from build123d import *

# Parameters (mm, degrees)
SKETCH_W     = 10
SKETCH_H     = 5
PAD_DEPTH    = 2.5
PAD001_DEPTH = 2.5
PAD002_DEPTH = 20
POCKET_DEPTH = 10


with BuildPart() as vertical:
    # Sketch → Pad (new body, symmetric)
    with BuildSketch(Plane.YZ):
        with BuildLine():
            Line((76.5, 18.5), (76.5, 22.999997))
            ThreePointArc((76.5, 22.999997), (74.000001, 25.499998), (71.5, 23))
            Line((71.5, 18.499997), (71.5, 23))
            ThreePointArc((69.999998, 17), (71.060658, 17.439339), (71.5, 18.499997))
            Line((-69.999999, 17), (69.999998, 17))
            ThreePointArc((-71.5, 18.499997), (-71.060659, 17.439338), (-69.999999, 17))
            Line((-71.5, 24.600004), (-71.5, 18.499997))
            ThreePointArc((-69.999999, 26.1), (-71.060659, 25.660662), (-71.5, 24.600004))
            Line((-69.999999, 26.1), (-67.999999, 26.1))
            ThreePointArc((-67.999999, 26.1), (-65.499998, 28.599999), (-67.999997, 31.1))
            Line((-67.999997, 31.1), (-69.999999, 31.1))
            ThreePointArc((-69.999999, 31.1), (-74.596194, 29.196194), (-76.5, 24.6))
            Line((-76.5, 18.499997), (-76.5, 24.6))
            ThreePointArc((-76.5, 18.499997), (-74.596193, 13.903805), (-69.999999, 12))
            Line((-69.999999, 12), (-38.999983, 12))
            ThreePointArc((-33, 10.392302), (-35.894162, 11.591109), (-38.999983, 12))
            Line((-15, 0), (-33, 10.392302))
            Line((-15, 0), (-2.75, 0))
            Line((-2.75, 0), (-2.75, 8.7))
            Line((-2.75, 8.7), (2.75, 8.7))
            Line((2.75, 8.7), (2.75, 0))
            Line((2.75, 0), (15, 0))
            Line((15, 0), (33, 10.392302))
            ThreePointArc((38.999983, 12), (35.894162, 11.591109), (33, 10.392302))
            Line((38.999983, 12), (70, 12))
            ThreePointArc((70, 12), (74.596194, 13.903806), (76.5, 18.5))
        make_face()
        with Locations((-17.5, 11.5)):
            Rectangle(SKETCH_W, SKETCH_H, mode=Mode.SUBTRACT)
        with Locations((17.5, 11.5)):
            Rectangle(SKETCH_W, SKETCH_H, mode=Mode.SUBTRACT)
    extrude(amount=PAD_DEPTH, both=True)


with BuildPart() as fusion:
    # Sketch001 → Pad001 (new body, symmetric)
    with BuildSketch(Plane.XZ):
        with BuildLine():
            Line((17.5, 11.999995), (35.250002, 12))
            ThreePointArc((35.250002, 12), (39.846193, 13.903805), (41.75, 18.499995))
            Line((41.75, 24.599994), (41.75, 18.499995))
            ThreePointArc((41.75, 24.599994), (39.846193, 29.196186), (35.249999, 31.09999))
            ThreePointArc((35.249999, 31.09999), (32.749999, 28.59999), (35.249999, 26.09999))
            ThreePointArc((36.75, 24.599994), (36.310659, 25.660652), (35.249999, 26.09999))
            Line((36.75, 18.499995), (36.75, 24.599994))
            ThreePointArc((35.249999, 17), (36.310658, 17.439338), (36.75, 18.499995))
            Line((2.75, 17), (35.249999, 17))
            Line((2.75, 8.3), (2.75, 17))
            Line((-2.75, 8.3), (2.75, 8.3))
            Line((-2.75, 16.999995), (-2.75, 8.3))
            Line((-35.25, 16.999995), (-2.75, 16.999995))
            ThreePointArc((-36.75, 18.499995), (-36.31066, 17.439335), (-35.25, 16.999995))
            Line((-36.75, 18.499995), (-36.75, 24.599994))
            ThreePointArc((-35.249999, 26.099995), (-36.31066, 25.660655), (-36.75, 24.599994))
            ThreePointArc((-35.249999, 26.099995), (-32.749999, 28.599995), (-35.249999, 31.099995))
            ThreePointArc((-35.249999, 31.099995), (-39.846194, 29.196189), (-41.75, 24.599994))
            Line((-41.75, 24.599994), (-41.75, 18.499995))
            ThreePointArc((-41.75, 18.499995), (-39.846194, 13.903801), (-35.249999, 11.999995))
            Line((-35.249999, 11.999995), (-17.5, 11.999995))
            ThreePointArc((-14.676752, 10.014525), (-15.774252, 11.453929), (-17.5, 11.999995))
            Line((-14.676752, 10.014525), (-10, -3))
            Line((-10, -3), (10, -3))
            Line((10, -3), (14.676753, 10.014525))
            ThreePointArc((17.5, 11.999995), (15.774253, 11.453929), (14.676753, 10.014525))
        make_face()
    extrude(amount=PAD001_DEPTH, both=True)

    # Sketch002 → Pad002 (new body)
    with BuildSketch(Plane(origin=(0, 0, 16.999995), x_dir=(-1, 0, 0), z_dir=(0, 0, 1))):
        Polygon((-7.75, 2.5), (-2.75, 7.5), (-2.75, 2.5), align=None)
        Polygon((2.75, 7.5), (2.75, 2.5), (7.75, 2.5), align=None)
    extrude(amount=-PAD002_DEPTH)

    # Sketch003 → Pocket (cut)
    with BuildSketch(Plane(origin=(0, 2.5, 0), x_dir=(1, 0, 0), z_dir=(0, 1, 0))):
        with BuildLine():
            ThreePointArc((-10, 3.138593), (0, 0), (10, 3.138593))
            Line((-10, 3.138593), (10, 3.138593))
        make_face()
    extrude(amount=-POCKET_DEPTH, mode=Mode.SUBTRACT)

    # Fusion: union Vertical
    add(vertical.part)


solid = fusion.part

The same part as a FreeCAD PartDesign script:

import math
import FreeCAD as App
import Part
import Sketcher

V = App.Vector
Q = App.Units.Quantity


def add_polygon(sketch, points):
    """Adds a closed chain of lines whose ends are joined by coincident constraints."""
    first, n = sketch.GeometryCount, len(points)
    for a, b in zip(points, points[1:] + points[:1]):
        sketch.addGeometry(Part.LineSegment(App.Vector(*a, 0), App.Vector(*b, 0)), False)
    for i in range(n):
        sketch.addConstraint(Sketcher.Constraint("Coincident", first + i, 2, first + (i + 1) % n, 1))

doc = App.newDocument("Part")
body = doc.addObject("PartDesign::Body", "Body")

# Sketch on YZ plane
sketch1 = body.newObject("Sketcher::SketchObject", "Sketch")
sketch1.AttachmentSupport = (doc.getObject("YZ_Plane"), [""])
sketch1.MapMode = "FlatFace"
sketch1.addGeometry(Part.LineSegment(V(76.5, 18.5, 0), V(76.5, 23, 0)), False)  # 0
sketch1.addGeometry(Part.ArcOfCircle(Part.Circle(V(74, 23, 0), V(0, 0, 1), 2.5), math.radians(0), math.radians(180)), False)  # 1
sketch1.addGeometry(Part.LineSegment(V(71.5, 23, 0), V(71.5, 18.5, 0)), False)  # 2
sketch1.addGeometry(Part.ArcOfCircle(Part.Circle(V(70, 18.5, 0), V(0, 0, 1), 1.5), math.radians(-90), math.radians(0)), False)  # 3
sketch1.addGeometry(Part.LineSegment(V(70, 17, 0), V(-70, 17, 0)), False)  # 4
sketch1.addGeometry(Part.ArcOfCircle(Part.Circle(V(-70, 18.5, 0), V(0, 0, 1), 1.5), math.radians(-180), math.radians(-90)), False)  # 5
sketch1.addGeometry(Part.LineSegment(V(-71.5, 18.5, 0), V(-71.5, 24.6, 0)), False)  # 6
sketch1.addGeometry(Part.ArcOfCircle(Part.Circle(V(-70, 24.6, 0), V(0, 0, 1), 1.5), math.radians(90), math.radians(180)), False)  # 7
sketch1.addGeometry(Part.LineSegment(V(-70, 26.1, 0), V(-68, 26.1, 0)), False)  # 8
sketch1.addGeometry(Part.ArcOfCircle(Part.Circle(V(-68, 28.6, 0), V(0, 0, 1), 2.5), math.radians(-90), math.radians(90)), False)  # 9
sketch1.addGeometry(Part.LineSegment(V(-68, 31.1, 0), V(-70, 31.1, 0)), False)  # 10
sketch1.addGeometry(Part.ArcOfCircle(Part.Circle(V(-70, 24.6, 0), V(0, 0, 1), 6.5), math.radians(90), math.radians(180)), False)  # 11
sketch1.addGeometry(Part.LineSegment(V(-76.5, 24.6, 0), V(-76.5, 18.5, 0)), False)  # 12
sketch1.addGeometry(Part.ArcOfCircle(Part.Circle(V(-70, 18.5, 0), V(0, 0, 1), 6.5), math.radians(-180), math.radians(-90)), False)  # 13
sketch1.addGeometry(Part.LineSegment(V(-70, 12, 0), V(-39, 12, 0)), False)  # 14
sketch1.addGeometry(Part.ArcOfCircle(Part.Circle(V(-39, 0, 0), V(0, 0, 1), 12), math.radians(60), math.radians(90)), False)  # 15
sketch1.addGeometry(Part.LineSegment(V(-33, 10.4, 0), V(-15, 0, 0)), False)  # 16
sketch1.addGeometry(Part.LineSegment(V(-15, 0, 0), V(-2.8, 0, 0)), False)  # 17
sketch1.addGeometry(Part.LineSegment(V(-2.8, 0, 0), V(-2.8, 8.7, 0)), False)  # 18
sketch1.addGeometry(Part.LineSegment(V(-2.8, 8.7, 0), V(2.8, 8.7, 0)), False)  # 19
sketch1.addGeometry(Part.LineSegment(V(2.8, 8.7, 0), V(2.8, 0, 0)), False)  # 20
sketch1.addGeometry(Part.LineSegment(V(2.8, 0, 0), V(15, 0, 0)), False)  # 21
sketch1.addGeometry(Part.LineSegment(V(15, 0, 0), V(33, 10.4, 0)), False)  # 22
sketch1.addGeometry(Part.ArcOfCircle(Part.Circle(V(39, 0, 0), V(0, 0, 1), 12), math.radians(90), math.radians(120)), False)  # 23
sketch1.addGeometry(Part.LineSegment(V(39, 12, 0), V(70, 12, 0)), False)  # 24
sketch1.addGeometry(Part.ArcOfCircle(Part.Circle(V(70, 18.5, 0), V(0, 0, 1), 6.5), math.radians(-90), math.radians(0)), False)  # 25
add_polygon(sketch1, [(-12.5, 9), (-22.5, 9), (-22.5, 14), (-12.5, 14)])  # lines 26-29
add_polygon(sketch1, [(22.5, 9), (12.5, 9), (12.5, 14), (22.5, 14)])  # lines 30-33
sketch1.addConstraint(Sketcher.Constraint("Tangent", 0, 2, 1, 1))
sketch1.addConstraint(Sketcher.Constraint("Tangent", 1, 2, 2, 1))
sketch1.addConstraint(Sketcher.Constraint("Coincident", 2, 2, 3, 2))
sketch1.addConstraint(Sketcher.Constraint("Tangent", 3, 1, 4, 1))
sketch1.addConstraint(Sketcher.Constraint("Tangent", 4, 2, 5, 2))
sketch1.addConstraint(Sketcher.Constraint("Tangent", 5, 1, 6, 1))
sketch1.addConstraint(Sketcher.Constraint("Tangent", 6, 2, 7, 2))
sketch1.addConstraint(Sketcher.Constraint("Tangent", 7, 1, 8, 1))
sketch1.addConstraint(Sketcher.Constraint("Tangent", 8, 2, 9, 1))
sketch1.addConstraint(Sketcher.Constraint("Tangent", 9, 2, 10, 1))
sketch1.addConstraint(Sketcher.Constraint("Tangent", 10, 2, 11, 1))
sketch1.addConstraint(Sketcher.Constraint("Tangent", 11, 2, 12, 1))
sketch1.addConstraint(Sketcher.Constraint("Tangent", 12, 2, 13, 1))
sketch1.addConstraint(Sketcher.Constraint("Tangent", 13, 2, 14, 1))
sketch1.addConstraint(Sketcher.Constraint("Tangent", 14, 2, 15, 2))
sketch1.addConstraint(Sketcher.Constraint("Coincident", 15, 1, 16, 1))
sketch1.addConstraint(Sketcher.Constraint("Coincident", 16, 2, 17, 1))
sketch1.addConstraint(Sketcher.Constraint("Coincident", 17, 2, 18, 1))
sketch1.addConstraint(Sketcher.Constraint("Coincident", 18, 2, 19, 1))
sketch1.addConstraint(Sketcher.Constraint("Coincident", 19, 2, 20, 1))
sketch1.addConstraint(Sketcher.Constraint("Coincident", 20, 2, 21, 1))
sketch1.addConstraint(Sketcher.Constraint("Coincident", 21, 2, 22, 1))
sketch1.addConstraint(Sketcher.Constraint("Coincident", 22, 2, 23, 2))
sketch1.addConstraint(Sketcher.Constraint("Tangent", 23, 1, 24, 1))
sketch1.addConstraint(Sketcher.Constraint("Tangent", 24, 2, 25, 1))
sketch1.addConstraint(Sketcher.Constraint("Tangent", 25, 2, 0, 1))
sketch1.addConstraint(Sketcher.Constraint("Vertical", 0))
sketch1.addConstraint(Sketcher.Constraint("Vertical", 2))
sketch1.addConstraint(Sketcher.Constraint("Horizontal", 4))
sketch1.addConstraint(Sketcher.Constraint("Vertical", 6))
sketch1.addConstraint(Sketcher.Constraint("Horizontal", 8))
sketch1.addConstraint(Sketcher.Constraint("Horizontal", 10))
sketch1.addConstraint(Sketcher.Constraint("Vertical", 12))
sketch1.addConstraint(Sketcher.Constraint("Horizontal", 14))
sketch1.addConstraint(Sketcher.Constraint("Horizontal", 17))
sketch1.addConstraint(Sketcher.Constraint("Vertical", 18))
sketch1.addConstraint(Sketcher.Constraint("Horizontal", 19))
sketch1.addConstraint(Sketcher.Constraint("Vertical", 20))
sketch1.addConstraint(Sketcher.Constraint("Horizontal", 21))
sketch1.addConstraint(Sketcher.Constraint("Horizontal", 24))
sketch1.addConstraint(Sketcher.Constraint("Horizontal", 26))
sketch1.addConstraint(Sketcher.Constraint("Vertical", 27))
sketch1.addConstraint(Sketcher.Constraint("Horizontal", 28))
sketch1.addConstraint(Sketcher.Constraint("Vertical", 29))
sketch1.addConstraint(Sketcher.Constraint("Horizontal", 30))
sketch1.addConstraint(Sketcher.Constraint("Vertical", 31))
sketch1.addConstraint(Sketcher.Constraint("Horizontal", 32))
sketch1.addConstraint(Sketcher.Constraint("Vertical", 33))
sketch1.addConstraint(Sketcher.Constraint("Coincident", 11, 3, 7, 3))
sketch1.addConstraint(Sketcher.Constraint("Coincident", 13, 3, 5, 3))
sketch1.addConstraint(Sketcher.Constraint("Coincident", 25, 3, 3, 3))
sketch1.addConstraint(Sketcher.Constraint("Equal", 5, 7))
sketch1.addConstraint(Sketcher.Constraint("Equal", 1, 9))
sketch1.addConstraint(Sketcher.Constraint("Equal", 15, 23))
sketch1.addConstraint(Sketcher.Constraint("Equal", 13, 25))
sketch1.addConstraint(Sketcher.Constraint("Symmetric", 17, 2, 20, 2, -1, 1))
sketch1.addConstraint(Sketcher.Constraint("Symmetric", 2, 2, 5, 1, -2))
sketch1.addConstraint(Sketcher.Constraint("Symmetric", 16, 2, 21, 2, -2))
sketch1.addConstraint(Sketcher.Constraint("Symmetric", 15, 1, 22, 2, -2))
sketch1.addConstraint(Sketcher.Constraint("Symmetric", 29, 2, 30, 2, -2))
sketch1.addConstraint(Sketcher.Constraint("Symmetric", 27, 2, 32, 2, -2))
sketch1.addConstraint(Sketcher.Constraint("Radius", 1, Q("2.5 mm")))
sketch1.addConstraint(Sketcher.Constraint("Radius", 5, Q("1.499999 mm")))
sketch1.addConstraint(Sketcher.Constraint("DistanceX", 8, 1, 8, 2, Q("2 mm")))
sketch1.addConstraint(Sketcher.Constraint("DistanceX", 26, 2, 26, 1, Q("10 mm")))
sketch1.addConstraint(Sketcher.Constraint("DistanceY", 27, 1, 27, 2, Q("5 mm")))
sketch1.addConstraint(Sketcher.Constraint("Angle", 16, Q("-29.999993 deg")))
sketch1.addConstraint(Sketcher.Constraint("DistanceX", 19, 1, 19, 2, Q("5.5 mm")))
sketch1.addConstraint(Sketcher.Constraint("DistanceY", 18, 1, 18, 2, Q("8.7 mm")))
sketch1.addConstraint(Sketcher.Constraint("DistanceX", -1, 1, 1, 3, Q("74 mm")))
sketch1.addConstraint(Sketcher.Constraint("DistanceY", -1, 1, 1, 3, Q("22.999998 mm")))
sketch1.addConstraint(Sketcher.Constraint("DistanceY", -1, 1, 3, 1, Q("17 mm")))
sketch1.addConstraint(Sketcher.Constraint("DistanceX", 15, 1, -1, 1, Q("33 mm")))
sketch1.addConstraint(Sketcher.Constraint("DistanceX", 16, 2, -1, 1, Q("15 mm")))
sketch1.addConstraint(Sketcher.Constraint("DistanceY", -1, 1, 26, 2, Q("9 mm")))
sketch1.addConstraint(Sketcher.Constraint("DistanceY", -1, 1, 7, 3, Q("24.600001 mm")))
sketch1.addConstraint(Sketcher.Constraint("DistanceX", 26, 2, -1, 1, Q("22.5 mm")))
sketch1.addConstraint(Sketcher.Constraint("Radius", 15, Q("11.99992 mm")))
pad1 = body.newObject("PartDesign::Pad", "Pad")
pad1.Profile = sketch1
pad1.Length = 5
pad1.Midplane = True
body2 = doc.addObject("PartDesign::Body", "Body001")
body2.AllowCompound = True

# Sketch on XZ plane
sketch2 = body2.newObject("Sketcher::SketchObject", "Sketch001")
sketch2.AttachmentSupport = (doc.getObject("XZ_Plane001"), [""])
sketch2.MapMode = "FlatFace"
sketch2.addGeometry(Part.LineSegment(V(17.5, 12, 0), V(35.3, 12, 0)), False)
sketch2.addGeometry(Part.ArcOfCircle(Part.Circle(V(35.2, 18.5, 0), V(0, 0, 1), 6.5), math.radians(-90), math.radians(0)), False)
sketch2.addGeometry(Part.LineSegment(V(41.8, 18.5, 0), V(41.8, 24.6, 0)), False)
sketch2.addGeometry(Part.ArcOfCircle(Part.Circle(V(35.3, 24.6, 0), V(0, 0, 1), 6.5), math.radians(0), math.radians(90)), False)
sketch2.addGeometry(Part.ArcOfCircle(Part.Circle(V(35.2, 28.6, 0), V(0, 0, 1), 2.5), math.radians(90), math.radians(270)), False)
sketch2.addGeometry(Part.ArcOfCircle(Part.Circle(V(35.3, 24.6, 0), V(0, 0, 1), 1.5), math.radians(0), math.radians(90)), False)
sketch2.addGeometry(Part.LineSegment(V(36.8, 24.6, 0), V(36.8, 18.5, 0)), False)
sketch2.addGeometry(Part.ArcOfCircle(Part.Circle(V(35.2, 18.5, 0), V(0, 0, 1), 1.5), math.radians(-90), math.radians(0)), False)
sketch2.addGeometry(Part.LineSegment(V(35.2, 17, 0), V(2.8, 17, 0)), False)
sketch2.addGeometry(Part.LineSegment(V(2.8, 17, 0), V(2.8, 8.3, 0)), False)
sketch2.addGeometry(Part.LineSegment(V(2.8, 8.3, 0), V(-2.8, 8.3, 0)), False)
sketch2.addGeometry(Part.LineSegment(V(-2.8, 8.3, 0), V(-2.8, 17, 0)), False)
sketch2.addGeometry(Part.LineSegment(V(-2.8, 17, 0), V(-35.2, 17, 0)), False)
sketch2.addGeometry(Part.ArcOfCircle(Part.Circle(V(-35.2, 18.5, 0), V(0, 0, 1), 1.5), math.radians(-180), math.radians(-90)), False)
sketch2.addGeometry(Part.LineSegment(V(-36.8, 18.5, 0), V(-36.8, 24.6, 0)), False)
sketch2.addGeometry(Part.ArcOfCircle(Part.Circle(V(-35.2, 24.6, 0), V(0, 0, 1), 1.5), math.radians(90), math.radians(180)), False)
sketch2.addGeometry(Part.ArcOfCircle(Part.Circle(V(-35.2, 28.6, 0), V(0, 0, 1), 2.5), math.radians(-90), math.radians(90)), False)
sketch2.addGeometry(Part.ArcOfCircle(Part.Circle(V(-35.2, 24.6, 0), V(0, 0, 1), 6.5), math.radians(90), math.radians(180)), False)
sketch2.addGeometry(Part.LineSegment(V(-41.8, 24.6, 0), V(-41.8, 18.5, 0)), False)
sketch2.addGeometry(Part.ArcOfCircle(Part.Circle(V(-35.2, 18.5, 0), V(0, 0, 1), 6.5), math.radians(-180), math.radians(-90)), False)
sketch2.addGeometry(Part.LineSegment(V(-35.2, 12, 0), V(-17.5, 12, 0)), False)
sketch2.addGeometry(Part.ArcOfCircle(Part.Circle(V(-17.5, 9, 0), V(0, 0, 1), 3), math.radians(20), math.radians(90)), False)
sketch2.addGeometry(Part.LineSegment(V(-14.7, 10, 0), V(-10, -3, 0)), False)
sketch2.addGeometry(Part.LineSegment(V(-10, -3, 0), V(10, -3, 0)), False)
sketch2.addGeometry(Part.LineSegment(V(10, -3, 0), V(14.7, 10, 0)), False)
sketch2.addGeometry(Part.ArcOfCircle(Part.Circle(V(17.5, 9, 0), V(0, 0, 1), 3), math.radians(90), math.radians(160)), False)
sketch2.addConstraint(Sketcher.Constraint("Tangent", 0, 2, 1, 1))
sketch2.addConstraint(Sketcher.Constraint("Tangent", 1, 2, 2, 1))
sketch2.addConstraint(Sketcher.Constraint("Tangent", 2, 2, 3, 1))
sketch2.addConstraint(Sketcher.Constraint("Tangent", 3, 2, 4, 1))
sketch2.addConstraint(Sketcher.Constraint("Tangent", 4, 2, 5, 2))
sketch2.addConstraint(Sketcher.Constraint("Tangent", 5, 1, 6, 1))
sketch2.addConstraint(Sketcher.Constraint("Coincident", 6, 2, 7, 2))
sketch2.addConstraint(Sketcher.Constraint("Tangent", 7, 1, 8, 1))
sketch2.addConstraint(Sketcher.Constraint("Coincident", 8, 2, 9, 1))
sketch2.addConstraint(Sketcher.Constraint("Coincident", 9, 2, 10, 1))
sketch2.addConstraint(Sketcher.Constraint("Coincident", 10, 2, 11, 1))
sketch2.addConstraint(Sketcher.Constraint("Coincident", 11, 2, 12, 1))
sketch2.addConstraint(Sketcher.Constraint("Tangent", 12, 2, 13, 2))
sketch2.addConstraint(Sketcher.Constraint("Tangent", 13, 1, 14, 1))
sketch2.addConstraint(Sketcher.Constraint("Tangent", 14, 2, 15, 2))
sketch2.addConstraint(Sketcher.Constraint("Tangent", 15, 1, 16, 1))
sketch2.addConstraint(Sketcher.Constraint("Tangent", 16, 2, 17, 1))
sketch2.addConstraint(Sketcher.Constraint("Tangent", 17, 2, 18, 1))
sketch2.addConstraint(Sketcher.Constraint("Tangent", 18, 2, 19, 1))
sketch2.addConstraint(Sketcher.Constraint("Tangent", 19, 2, 20, 1))
sketch2.addConstraint(Sketcher.Constraint("Tangent", 20, 2, 21, 2))
sketch2.addConstraint(Sketcher.Constraint("Tangent", 21, 1, 22, 1))
sketch2.addConstraint(Sketcher.Constraint("Coincident", 22, 2, 23, 1))
sketch2.addConstraint(Sketcher.Constraint("Coincident", 23, 2, 24, 1))
sketch2.addConstraint(Sketcher.Constraint("Tangent", 24, 2, 25, 2))
sketch2.addConstraint(Sketcher.Constraint("Tangent", 25, 1, 0, 1))
sketch2.addConstraint(Sketcher.Constraint("Vertical", 2))
sketch2.addConstraint(Sketcher.Constraint("Vertical", 6))
sketch2.addConstraint(Sketcher.Constraint("Horizontal", 8))
sketch2.addConstraint(Sketcher.Constraint("Vertical", 9))
sketch2.addConstraint(Sketcher.Constraint("Horizontal", 10))
sketch2.addConstraint(Sketcher.Constraint("Vertical", 11))
sketch2.addConstraint(Sketcher.Constraint("Horizontal", 12))
sketch2.addConstraint(Sketcher.Constraint("Vertical", 14))
sketch2.addConstraint(Sketcher.Constraint("Vertical", 18))
sketch2.addConstraint(Sketcher.Constraint("Horizontal", 20))
sketch2.addConstraint(Sketcher.Constraint("Horizontal", 23))
sketch2.addConstraint(Sketcher.Constraint("Coincident", 5, 3, 3, 3))
sketch2.addConstraint(Sketcher.Constraint("Coincident", 7, 3, 1, 3))
sketch2.addConstraint(Sketcher.Constraint("Coincident", 17, 3, 15, 3))
sketch2.addConstraint(Sketcher.Constraint("Coincident", 19, 3, 13, 3))
sketch2.addConstraint(Sketcher.Constraint("Equal", 1, 3))
sketch2.addConstraint(Sketcher.Constraint("Equal", 7, 13))
sketch2.addConstraint(Sketcher.Constraint("Equal", 13, 15))
sketch2.addConstraint(Sketcher.Constraint("Equal", 4, 16))
sketch2.addConstraint(Sketcher.Constraint("Equal", 21, 25))
sketch2.addConstraint(Sketcher.Constraint("Symmetric", 1, 3, 13, 3, -2))
sketch2.addConstraint(Sketcher.Constraint("Symmetric", 4, 3, 16, 3, -2))
sketch2.addConstraint(Sketcher.Constraint("Symmetric", 21, 3, 25, 3, -2))
sketch2.addConstraint(Sketcher.Constraint("Horizontal", 1, 2, 6, 2))
sketch2.addConstraint(Sketcher.Constraint("Horizontal", 21, 1, 24, 2))
sketch2.addConstraint(Sketcher.Constraint("Vertical", 1, 3, 4, 3))
sketch2.addConstraint(Sketcher.Constraint("Equal", 8, 12))
sketch2.addConstraint(Sketcher.Constraint("Radius", 21, Q("3.000002 mm")))
sketch2.addConstraint(Sketcher.Constraint("Radius", 1, Q("6.5 mm")))
sketch2.addConstraint(Sketcher.Constraint("Radius", 4, Q("2.5 mm")))
sketch2.addConstraint(Sketcher.Constraint("DistanceX", 23, 1, 23, 2, Q("20 mm")))
sketch2.addConstraint(Sketcher.Constraint("DistanceX", 8, 2, 8, 1, Q("32.499999 mm")))
sketch2.addConstraint(Sketcher.Constraint("DistanceX", 10, 2, 10, 1, Q("5.5 mm")))
sketch2.addConstraint(Sketcher.Constraint("DistanceY", 2, 1, 2, 2, Q("6.099999 mm")))
sketch2.addConstraint(Sketcher.Constraint("DistanceY", 9, 2, 9, 1, Q("8.7 mm")))
sketch2.addConstraint(Sketcher.Constraint("DistanceY", -1, 1, 0, 2, Q("12 mm")))
sketch2.addConstraint(Sketcher.Constraint("DistanceY", 22, 2, -1, 1, Q("3 mm")))
sketch2.addConstraint(Sketcher.Constraint("DistanceX", 20, 1, 20, 2, Q("17.749999 mm")))
pad2 = body2.newObject("PartDesign::Pad", "Pad001")
pad2.Profile = sketch2
pad2.Length = 5
pad2.Midplane = True

# Sketch on XY plane
sketch3 = body2.newObject("Sketcher::SketchObject", "Sketch002")
sketch3.AttachmentSupport = (doc.getObject("XY_Plane001"), [""])
sketch3.MapMode = "FlatFace"
sketch3.AttachmentOffset = App.Placement(V(0, 0, 16.999995), App.Rotation())
add_polygon(sketch3, [(3, -8), (8, -2), (3, -2)])  # lines 0-2
add_polygon(sketch3, [(-3, -8), (-3, -2), (-8, -2)])  # lines 3-5
sketch3.addConstraint(Sketcher.Constraint("Horizontal", 1))
sketch3.addConstraint(Sketcher.Constraint("Vertical", 2))
sketch3.addConstraint(Sketcher.Constraint("Vertical", 3))
sketch3.addConstraint(Sketcher.Constraint("Horizontal", 4))
sketch3.addConstraint(Sketcher.Constraint("Symmetric", 1, 2, 3, 2, -2))
sketch3.addConstraint(Sketcher.Constraint("Perpendicular", 0, 5))
sketch3.addConstraint(Sketcher.Constraint("Horizontal", 2, 2, 5, 2))
sketch3.addConstraint(Sketcher.Constraint("Equal", 1, 4))
sketch3.addConstraint(Sketcher.Constraint("DistanceX", 1, 2, 1, 1, Q("5 mm")))
sketch3.addConstraint(Sketcher.Constraint("DistanceY", 0, 2, -1, 1, Q("2.5 mm")))
sketch3.addConstraint(Sketcher.Constraint("DistanceX", 3, 2, 1, 2, Q("5.5 mm")))
pad3 = body2.newObject("PartDesign::Pad", "Pad002")
pad3.Profile = sketch3
pad3.Length = 20
pad3.Reversed = True

# Sketch on XZ plane
sketch4 = body2.newObject("Sketcher::SketchObject", "Sketch003")
sketch4.AttachmentSupport = (doc.getObject("XZ_Plane001"), [""])
sketch4.MapMode = "FlatFace"
sketch4.AttachmentOffset = App.Placement(V(0, 0, -2.5), App.Rotation())
sketch4.addGeometry(Part.ArcOfCircle(Part.Circle(V(0, -18, 0), V(0, 0, 1), 18), math.radians(55), math.radians(125)), False)
sketch4.addGeometry(Part.LineSegment(V(10, -3, 0), V(-10, -3, 0)), False)
sketch4.addConstraint(Sketcher.Constraint("Coincident", 0, 1, 1, 1))
sketch4.addConstraint(Sketcher.Constraint("Coincident", 1, 2, 0, 2))
sketch4.addConstraint(Sketcher.Constraint("Horizontal", 1))
sketch4.addConstraint(Sketcher.Constraint("PointOnObject", 0, 3, -2))
sketch4.addConstraint(Sketcher.Constraint("Radius", 0, Q("17.500002 mm")))
sketch4.addConstraint(Sketcher.Constraint("DistanceX", 1, 2, 1, 1, Q("20 mm")))
sketch4.addConstraint(Sketcher.Constraint("DistanceY", 0, 3, -1, 1, Q("17.500002 mm")))
pocket1 = body2.newObject("PartDesign::Pocket", "Pocket")
pocket1.Profile = sketch4
pocket1.Length = 10
pocket1.Reversed = True
doc.recompute()

boolean = body2.newObject("PartDesign::Boolean", "Boolean")
boolean.Type = "Fuse"
boolean.addObjects([body])

doc.recompute()
